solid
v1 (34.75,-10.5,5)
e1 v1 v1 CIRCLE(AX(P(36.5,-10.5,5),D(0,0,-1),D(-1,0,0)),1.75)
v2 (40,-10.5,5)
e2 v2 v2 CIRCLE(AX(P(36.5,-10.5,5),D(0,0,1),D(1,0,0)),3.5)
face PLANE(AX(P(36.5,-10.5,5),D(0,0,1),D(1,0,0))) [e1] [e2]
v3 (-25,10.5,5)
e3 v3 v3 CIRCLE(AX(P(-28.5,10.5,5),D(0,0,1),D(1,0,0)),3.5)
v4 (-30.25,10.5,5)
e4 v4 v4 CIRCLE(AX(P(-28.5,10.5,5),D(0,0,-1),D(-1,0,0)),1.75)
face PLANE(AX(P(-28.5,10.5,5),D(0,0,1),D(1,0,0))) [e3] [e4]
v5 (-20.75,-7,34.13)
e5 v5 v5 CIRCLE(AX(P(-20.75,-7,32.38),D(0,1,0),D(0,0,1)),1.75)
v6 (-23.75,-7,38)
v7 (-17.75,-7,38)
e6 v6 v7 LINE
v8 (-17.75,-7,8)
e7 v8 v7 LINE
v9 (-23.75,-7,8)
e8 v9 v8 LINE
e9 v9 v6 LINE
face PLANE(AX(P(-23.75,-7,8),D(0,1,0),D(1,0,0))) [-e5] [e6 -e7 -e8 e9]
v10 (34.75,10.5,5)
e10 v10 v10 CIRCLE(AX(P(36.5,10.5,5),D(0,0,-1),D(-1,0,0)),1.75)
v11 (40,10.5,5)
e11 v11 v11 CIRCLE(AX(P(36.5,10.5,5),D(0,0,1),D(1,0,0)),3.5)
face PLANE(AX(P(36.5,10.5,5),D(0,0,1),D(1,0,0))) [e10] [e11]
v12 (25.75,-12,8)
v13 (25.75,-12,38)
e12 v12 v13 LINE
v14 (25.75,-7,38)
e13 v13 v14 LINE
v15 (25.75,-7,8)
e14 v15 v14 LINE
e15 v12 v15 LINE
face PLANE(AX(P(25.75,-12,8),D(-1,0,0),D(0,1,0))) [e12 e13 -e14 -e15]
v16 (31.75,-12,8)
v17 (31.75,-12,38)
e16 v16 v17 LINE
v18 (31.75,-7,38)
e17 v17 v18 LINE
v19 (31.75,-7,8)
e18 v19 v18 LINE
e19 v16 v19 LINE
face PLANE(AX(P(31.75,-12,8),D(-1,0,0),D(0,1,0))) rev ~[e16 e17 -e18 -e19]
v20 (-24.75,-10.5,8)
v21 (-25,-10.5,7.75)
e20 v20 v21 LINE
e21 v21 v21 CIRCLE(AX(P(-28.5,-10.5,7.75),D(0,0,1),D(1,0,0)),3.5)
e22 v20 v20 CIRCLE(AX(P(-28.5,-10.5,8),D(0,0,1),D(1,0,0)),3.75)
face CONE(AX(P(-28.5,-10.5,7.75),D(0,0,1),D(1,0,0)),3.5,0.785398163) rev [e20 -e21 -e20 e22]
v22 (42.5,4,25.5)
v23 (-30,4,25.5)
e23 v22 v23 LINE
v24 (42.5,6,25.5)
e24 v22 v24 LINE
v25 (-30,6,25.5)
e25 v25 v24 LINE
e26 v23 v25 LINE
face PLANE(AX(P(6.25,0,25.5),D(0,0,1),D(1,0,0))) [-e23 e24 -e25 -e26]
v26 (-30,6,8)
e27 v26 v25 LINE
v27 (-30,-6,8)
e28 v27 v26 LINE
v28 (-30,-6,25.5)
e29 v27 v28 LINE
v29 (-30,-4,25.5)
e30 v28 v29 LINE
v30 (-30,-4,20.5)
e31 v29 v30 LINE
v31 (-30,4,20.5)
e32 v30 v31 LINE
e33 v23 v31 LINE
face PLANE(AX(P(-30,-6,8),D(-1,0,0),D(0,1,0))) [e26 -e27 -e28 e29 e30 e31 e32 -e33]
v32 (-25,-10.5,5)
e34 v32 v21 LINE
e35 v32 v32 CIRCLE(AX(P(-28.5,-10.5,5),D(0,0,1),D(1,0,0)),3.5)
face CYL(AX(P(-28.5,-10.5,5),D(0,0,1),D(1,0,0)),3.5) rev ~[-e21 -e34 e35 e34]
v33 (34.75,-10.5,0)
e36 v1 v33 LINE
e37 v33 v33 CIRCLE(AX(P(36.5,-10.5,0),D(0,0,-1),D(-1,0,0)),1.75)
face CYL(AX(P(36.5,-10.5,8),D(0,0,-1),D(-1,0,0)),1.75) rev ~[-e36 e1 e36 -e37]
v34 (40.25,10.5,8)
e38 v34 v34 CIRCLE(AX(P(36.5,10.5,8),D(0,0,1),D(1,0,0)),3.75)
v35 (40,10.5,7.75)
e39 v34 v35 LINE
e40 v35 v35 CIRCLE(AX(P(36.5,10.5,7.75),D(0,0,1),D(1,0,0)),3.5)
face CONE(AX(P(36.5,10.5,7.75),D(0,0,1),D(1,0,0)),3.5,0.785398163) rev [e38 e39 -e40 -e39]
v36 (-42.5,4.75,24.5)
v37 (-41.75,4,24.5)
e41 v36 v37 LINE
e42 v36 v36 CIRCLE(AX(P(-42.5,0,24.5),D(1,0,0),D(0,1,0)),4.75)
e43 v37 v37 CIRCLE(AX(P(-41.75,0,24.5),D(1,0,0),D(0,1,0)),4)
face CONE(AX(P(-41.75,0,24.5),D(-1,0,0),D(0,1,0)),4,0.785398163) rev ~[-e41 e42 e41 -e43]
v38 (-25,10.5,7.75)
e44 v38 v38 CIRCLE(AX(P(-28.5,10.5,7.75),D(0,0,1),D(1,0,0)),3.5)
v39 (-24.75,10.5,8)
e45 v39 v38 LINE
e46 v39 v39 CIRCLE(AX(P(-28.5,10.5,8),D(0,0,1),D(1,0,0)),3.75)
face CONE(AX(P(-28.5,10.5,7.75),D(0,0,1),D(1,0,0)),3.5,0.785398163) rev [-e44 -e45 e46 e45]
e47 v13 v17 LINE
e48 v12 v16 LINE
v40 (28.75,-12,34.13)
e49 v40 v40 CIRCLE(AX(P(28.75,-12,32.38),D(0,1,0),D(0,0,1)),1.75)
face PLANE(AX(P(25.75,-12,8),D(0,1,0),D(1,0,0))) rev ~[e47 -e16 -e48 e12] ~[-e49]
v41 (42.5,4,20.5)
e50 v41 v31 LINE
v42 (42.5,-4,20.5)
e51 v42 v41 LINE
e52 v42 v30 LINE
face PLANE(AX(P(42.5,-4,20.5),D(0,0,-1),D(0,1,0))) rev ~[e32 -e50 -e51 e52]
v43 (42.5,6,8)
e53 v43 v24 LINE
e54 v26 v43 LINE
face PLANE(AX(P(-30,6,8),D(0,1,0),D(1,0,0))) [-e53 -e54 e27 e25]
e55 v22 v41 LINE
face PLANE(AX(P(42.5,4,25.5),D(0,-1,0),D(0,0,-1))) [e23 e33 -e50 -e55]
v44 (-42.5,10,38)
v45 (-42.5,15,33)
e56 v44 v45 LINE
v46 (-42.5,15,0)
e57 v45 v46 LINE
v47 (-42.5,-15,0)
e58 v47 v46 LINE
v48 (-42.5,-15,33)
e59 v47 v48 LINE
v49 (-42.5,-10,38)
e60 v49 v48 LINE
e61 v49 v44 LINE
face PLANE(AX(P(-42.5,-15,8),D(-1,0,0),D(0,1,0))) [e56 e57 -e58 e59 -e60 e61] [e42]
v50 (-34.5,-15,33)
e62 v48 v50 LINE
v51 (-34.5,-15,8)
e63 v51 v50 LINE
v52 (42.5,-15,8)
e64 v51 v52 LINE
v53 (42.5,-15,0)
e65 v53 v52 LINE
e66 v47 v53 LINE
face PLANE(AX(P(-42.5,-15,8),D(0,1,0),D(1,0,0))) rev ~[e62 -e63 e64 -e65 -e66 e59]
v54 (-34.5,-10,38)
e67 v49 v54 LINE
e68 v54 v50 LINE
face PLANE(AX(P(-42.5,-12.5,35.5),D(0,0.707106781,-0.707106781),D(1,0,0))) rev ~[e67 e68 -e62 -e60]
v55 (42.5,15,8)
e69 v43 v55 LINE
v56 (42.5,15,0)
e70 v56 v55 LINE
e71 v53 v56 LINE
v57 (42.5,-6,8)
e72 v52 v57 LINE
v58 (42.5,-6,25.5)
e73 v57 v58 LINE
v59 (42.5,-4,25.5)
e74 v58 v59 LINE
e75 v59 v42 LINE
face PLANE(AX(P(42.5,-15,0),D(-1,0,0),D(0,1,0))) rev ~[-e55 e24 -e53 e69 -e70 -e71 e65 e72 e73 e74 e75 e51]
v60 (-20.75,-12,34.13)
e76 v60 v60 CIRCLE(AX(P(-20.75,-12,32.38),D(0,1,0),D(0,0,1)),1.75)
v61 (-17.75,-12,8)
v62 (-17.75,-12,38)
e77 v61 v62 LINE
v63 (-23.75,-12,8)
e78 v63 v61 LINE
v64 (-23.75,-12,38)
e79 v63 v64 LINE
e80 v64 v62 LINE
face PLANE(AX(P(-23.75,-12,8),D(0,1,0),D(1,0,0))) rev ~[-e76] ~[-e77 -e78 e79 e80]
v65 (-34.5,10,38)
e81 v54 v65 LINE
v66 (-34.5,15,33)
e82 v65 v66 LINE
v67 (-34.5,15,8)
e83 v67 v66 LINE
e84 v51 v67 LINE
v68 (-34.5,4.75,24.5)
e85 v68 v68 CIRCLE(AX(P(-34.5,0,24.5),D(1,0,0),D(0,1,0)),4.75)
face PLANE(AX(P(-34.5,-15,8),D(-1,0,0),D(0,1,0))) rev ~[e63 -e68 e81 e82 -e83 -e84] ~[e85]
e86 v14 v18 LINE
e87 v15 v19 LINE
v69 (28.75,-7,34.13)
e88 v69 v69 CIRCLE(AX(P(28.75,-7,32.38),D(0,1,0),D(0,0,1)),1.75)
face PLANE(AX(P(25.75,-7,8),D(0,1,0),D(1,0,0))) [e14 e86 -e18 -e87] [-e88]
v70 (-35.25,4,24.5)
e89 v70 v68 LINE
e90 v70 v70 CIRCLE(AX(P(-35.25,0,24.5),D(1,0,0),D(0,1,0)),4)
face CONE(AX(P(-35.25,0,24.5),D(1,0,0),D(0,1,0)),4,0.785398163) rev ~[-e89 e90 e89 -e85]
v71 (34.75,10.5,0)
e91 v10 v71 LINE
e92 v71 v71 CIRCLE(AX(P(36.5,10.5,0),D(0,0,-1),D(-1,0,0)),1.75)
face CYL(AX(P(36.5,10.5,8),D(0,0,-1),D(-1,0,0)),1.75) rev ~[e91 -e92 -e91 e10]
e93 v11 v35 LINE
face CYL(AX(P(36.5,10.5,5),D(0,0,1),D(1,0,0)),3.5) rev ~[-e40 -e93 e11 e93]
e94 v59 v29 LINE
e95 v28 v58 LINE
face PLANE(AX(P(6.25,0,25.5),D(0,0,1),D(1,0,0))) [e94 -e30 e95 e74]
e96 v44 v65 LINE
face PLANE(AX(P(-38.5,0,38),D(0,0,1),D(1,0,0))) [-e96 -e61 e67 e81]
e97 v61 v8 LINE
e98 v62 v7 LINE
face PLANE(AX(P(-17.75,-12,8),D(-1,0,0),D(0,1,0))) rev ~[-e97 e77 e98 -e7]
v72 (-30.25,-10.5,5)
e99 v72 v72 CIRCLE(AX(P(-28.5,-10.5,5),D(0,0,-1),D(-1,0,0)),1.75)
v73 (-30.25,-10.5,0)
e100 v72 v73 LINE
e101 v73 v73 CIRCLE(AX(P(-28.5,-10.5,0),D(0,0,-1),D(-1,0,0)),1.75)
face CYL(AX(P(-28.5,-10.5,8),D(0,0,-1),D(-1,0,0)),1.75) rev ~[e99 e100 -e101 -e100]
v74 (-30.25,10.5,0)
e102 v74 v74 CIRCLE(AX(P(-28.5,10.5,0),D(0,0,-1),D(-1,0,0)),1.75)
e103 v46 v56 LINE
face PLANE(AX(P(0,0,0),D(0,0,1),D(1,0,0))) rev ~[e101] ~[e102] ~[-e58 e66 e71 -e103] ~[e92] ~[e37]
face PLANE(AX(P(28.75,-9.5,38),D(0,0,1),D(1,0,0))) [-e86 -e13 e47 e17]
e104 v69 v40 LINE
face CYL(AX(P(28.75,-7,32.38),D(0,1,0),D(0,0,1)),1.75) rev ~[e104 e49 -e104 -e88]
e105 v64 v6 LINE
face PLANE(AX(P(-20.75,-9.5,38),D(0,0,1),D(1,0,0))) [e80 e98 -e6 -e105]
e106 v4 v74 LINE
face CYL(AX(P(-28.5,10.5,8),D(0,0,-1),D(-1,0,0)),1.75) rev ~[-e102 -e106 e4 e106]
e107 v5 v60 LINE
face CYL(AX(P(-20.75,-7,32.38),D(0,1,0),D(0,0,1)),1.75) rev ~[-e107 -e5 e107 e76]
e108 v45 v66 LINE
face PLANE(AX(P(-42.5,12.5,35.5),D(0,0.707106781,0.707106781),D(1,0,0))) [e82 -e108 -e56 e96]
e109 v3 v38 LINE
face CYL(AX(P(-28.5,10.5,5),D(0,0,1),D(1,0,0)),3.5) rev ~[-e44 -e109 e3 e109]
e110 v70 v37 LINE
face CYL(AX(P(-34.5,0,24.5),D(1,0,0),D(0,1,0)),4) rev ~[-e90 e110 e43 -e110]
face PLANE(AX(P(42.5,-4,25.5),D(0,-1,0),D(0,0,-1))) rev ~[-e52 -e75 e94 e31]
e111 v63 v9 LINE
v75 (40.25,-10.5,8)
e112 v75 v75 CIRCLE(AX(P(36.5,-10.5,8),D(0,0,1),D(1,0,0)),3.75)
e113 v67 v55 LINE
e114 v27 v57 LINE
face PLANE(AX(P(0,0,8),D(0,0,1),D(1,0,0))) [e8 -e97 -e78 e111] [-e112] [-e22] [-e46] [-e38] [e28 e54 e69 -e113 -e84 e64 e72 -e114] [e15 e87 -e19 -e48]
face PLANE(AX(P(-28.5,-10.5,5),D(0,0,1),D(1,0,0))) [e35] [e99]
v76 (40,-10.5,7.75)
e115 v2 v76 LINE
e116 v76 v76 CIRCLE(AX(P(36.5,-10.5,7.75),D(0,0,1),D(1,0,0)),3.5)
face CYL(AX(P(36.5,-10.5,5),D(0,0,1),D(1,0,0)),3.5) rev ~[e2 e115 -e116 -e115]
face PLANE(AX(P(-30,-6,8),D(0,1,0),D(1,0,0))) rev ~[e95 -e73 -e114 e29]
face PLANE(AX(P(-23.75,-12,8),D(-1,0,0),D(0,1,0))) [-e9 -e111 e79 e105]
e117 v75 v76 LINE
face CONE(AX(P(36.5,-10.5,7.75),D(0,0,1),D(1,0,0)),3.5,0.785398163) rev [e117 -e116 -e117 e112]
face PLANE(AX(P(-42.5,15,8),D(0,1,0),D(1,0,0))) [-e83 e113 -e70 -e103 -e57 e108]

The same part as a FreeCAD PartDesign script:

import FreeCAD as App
import Part
import Sketcher


def edges_at(feature, points):
    """Names of the edges that pass closest to the given points."""
    edges = feature.Shape.Edges
    near = lambda p: min(range(len(edges)), key=lambda i: edges[i].distToShape(Part.Vertex(*p))[0])
    return sorted({f"Edge{near(p) + 1}" for p in points})

doc = App.newDocument("Part")
body = doc.addObject("PartDesign::Body", "Body")

# Sketch on XY plane
sketch1 = doc.addObject("Sketcher::SketchObject", "Sketch")
body.addObject(sketch1)
sketch1.AttachmentSupport = (doc.XY_Plane, [""])
sketch1.MapMode = "FlatFace"
sketch1.addGeometry([
    Part.LineSegment(App.Vector(-42, 15, 0), App.Vector(-42, -15, 0)),
    Part.LineSegment(App.Vector(-42, -15, 0), App.Vector(42, -15, 0)),
    Part.LineSegment(App.Vector(42, -15, 0), App.Vector(42, 15, 0)),
    Part.LineSegment(App.Vector(42, 15, 0), App.Vector(-42, 15, 0)),
], False)
sketch1.addConstraint([
    Sketcher.Constraint("Coincident", 0, 2, 1, 1),
    Sketcher.Constraint("Coincident", 1, 2, 2, 1),
    Sketcher.Constraint("Coincident", 2, 2, 3, 1),
    Sketcher.Constraint("Coincident", 3, 2, 0, 1),
    Sketcher.Constraint("Vertical", 0),
    Sketcher.Constraint("Horizontal", 1),
    Sketcher.Constraint("Vertical", 2),
    Sketcher.Constraint("Horizontal", 3),
    Sketcher.Constraint("Symmetric", 0, 2, 2, 2, -1, 1),
    Sketcher.Constraint("DistanceX", 1, 1, 1, 2, 85.0),
    Sketcher.Constraint("DistanceY", 0, 2, 0, 1, 30.0),
])
pad1 = doc.addObject("PartDesign::Pad", "Pad")
body.addObject(pad1)
pad1.Profile = sketch1
pad1.Length = 8

# Sketch on XY plane
sketch2 = doc.addObject("Sketcher::SketchObject", "Sketch001")
body.addObject(sketch2)
sketch2.AttachmentSupport = (doc.XY_Plane, [""])
sketch2.MapMode = "FlatFace"
sketch2.AttachmentOffset = App.Placement(App.Vector(0, 0, 8), App.Rotation())
sketch2.addGeometry([
    Part.LineSegment(App.Vector(-42, 15, 0), App.Vector(-42, -15, 0)),
    Part.LineSegment(App.Vector(-42, -15, 0), App.Vector(-34, -15, 0)),
    Part.LineSegment(App.Vector(-34, -15, 0), App.Vector(-34, 15, 0)),
    Part.LineSegment(App.Vector(-34, 15, 0), App.Vector(-42, 15, 0)),
], False)
sketch2.addConstraint([
    Sketcher.Constraint("Coincident", 0, 2, 1, 1),
    Sketcher.Constraint("Coincident", 1, 2, 2, 1),
    Sketcher.Constraint("Coincident", 2, 2, 3, 1),
    Sketcher.Constraint("Coincident", 3, 2, 0, 1),
    Sketcher.Constraint("Vertical", 0),
    Sketcher.Constraint("Horizontal", 1),
    Sketcher.Constraint("Vertical", 2),
    Sketcher.Constraint("Horizontal", 3),
    Sketcher.Constraint("DistanceX", 1, 1, 1, 2, 8.0),
    Sketcher.Constraint("DistanceY", 0, 2, 0, 1, 30.0),
    Sketcher.Constraint("DistanceY", 0, 2, -1, 1, 15.0),
    Sketcher.Constraint("DistanceX", 0, 2, -1, 1, 42.5),
])
pad2 = doc.addObject("PartDesign::Pad", "Pad001")
body.addObject(pad2)
pad2.Profile = sketch2
pad2.Length = 30

# Sketch on XY plane
sketch3 = doc.addObject("Sketcher::SketchObject", "Sketch002")
body.addObject(sketch3)
sketch3.AttachmentSupport = (doc.XY_Plane, [""])
sketch3.MapMode = "FlatFace"
sketch3.AttachmentOffset = App.Placement(App.Vector(0, 0, 8), App.Rotation())
sketch3.addGeometry([
    Part.LineSegment(App.Vector(-30, 6, 0), App.Vector(-30, -6, 0)),
    Part.LineSegment(App.Vector(-30, -6, 0), App.Vector(42, -6, 0)),
    Part.LineSegment(App.Vector(42, -6, 0), App.Vector(42, 6, 0)),
    Part.LineSegment(App.Vector(42, 6, 0), App.Vector(-30, 6, 0)),
], False)
sketch3.addConstraint([
    Sketcher.Constraint("Coincident", 0, 2, 1, 1),
    Sketcher.Constraint("Coincident", 1, 2, 2, 1),
    Sketcher.Constraint("Coincident", 2, 2, 3, 1),
    Sketcher.Constraint("Coincident", 3, 2, 0, 1),
    Sketcher.Constraint("Vertical", 0),
    Sketcher.Constraint("Horizontal", 1),
    Sketcher.Constraint("Vertical", 2),
    Sketcher.Constraint("Horizontal", 3),
    Sketcher.Constraint("DistanceY", 0, 2, 0, 1, 12.0),
    Sketcher.Constraint("DistanceX", 1, 1, 1, 2, 72.5),
    Sketcher.Constraint("DistanceX", 0, 2, -1, 1, 30.0),
    Sketcher.Constraint("DistanceY", 0, 2, -1, 1, 6.0),
])
pad3 = doc.addObject("PartDesign::Pad", "Pad002")
body.addObject(pad3)
pad3.Profile = sketch3
pad3.Length = 17.5

# Sketch on YZ plane
sketch4 = doc.addObject("Sketcher::SketchObject", "Sketch003")
body.addObject(sketch4)
sketch4.AttachmentSupport = (doc.YZ_Plane, [""])
sketch4.MapMode = "FlatFace"
sketch4.AttachmentOffset = App.Placement(App.Vector(0, 0, 42.5), App.Rotation())
sketch4.addGeometry([
    Part.LineSegment(App.Vector(4, 26, 0), App.Vector(-4, 26, 0)),
    Part.LineSegment(App.Vector(-4, 26, 0), App.Vector(-4, 20, 0)),
    Part.LineSegment(App.Vector(-4, 20, 0), App.Vector(4, 20, 0)),
    Part.LineSegment(App.Vector(4, 20, 0), App.Vector(4, 26, 0)),
], False)
sketch4.addConstraint([
    Sketcher.Constraint("Coincident", 0, 2, 1, 1),
    Sketcher.Constraint("Coincident", 1, 2, 2, 1),
    Sketcher.Constraint("Coincident", 2, 2, 3, 1),
    Sketcher.Constraint("Coincident", 3, 2, 0, 1),
    Sketcher.Constraint("Horizontal", 0),
    Sketcher.Constraint("Vertical", 1),
    Sketcher.Constraint("Horizontal", 2),
    Sketcher.Constraint("Vertical", 3),
    Sketcher.Constraint("DistanceX", 0, 2, 0, 1, 8.0),
    Sketcher.Constraint("DistanceY", 1, 2, 1, 1, 5.0),
    Sketcher.Constraint("DistanceX", 0, 2, -1, 1, 4.0),
    Sketcher.Constraint("DistanceY", -1, 1, 0, 2, 25.5),
])
pocket1 = doc.addObject("PartDesign::Pocket", "Pocket")
body.addObject(pocket1)
pocket1.Profile = sketch4
pocket1.Length = 72.5
doc.recompute()

chamfer = doc.addObject("PartDesign::Chamfer", "Chamfer")
body.addObject(chamfer)
chamfer.Base = (pocket1, edges_at(pocket1, [(-38.5, -15, 38), (-38.5, 15, 38)]))
chamfer.Size = 5

# Sketch on YZ plane
sketch5 = doc.addObject("Sketcher::SketchObject", "Sketch004")
body.addObject(sketch5)
sketch5.AttachmentSupport = (doc.YZ_Plane, [""])
sketch5.MapMode = "FlatFace"
sketch5.AttachmentOffset = App.Placement(App.Vector(0, 0, -34.5), App.Rotation())
sketch5.addGeometry(Part.Circle(App.Vector(0, 24.5, 0), App.Vector(0, 0, 1), 4), False)
sketch5.addConstraint([
    Sketcher.Constraint("PointOnObject", 0, 3, -2),
    Sketcher.Constraint("Diameter", 0, 8.0),
    Sketcher.Constraint("DistanceY", -1, 1, 0, 3, 24.5),
])
pocket2 = doc.addObject("PartDesign::Pocket", "Pocket001")
body.addObject(pocket2)
pocket2.Profile = sketch5
pocket2.Length = 20
doc.recompute()

chamfer2 = doc.addObject("PartDesign::Chamfer", "Chamfer001")
body.addObject(chamfer2)
chamfer2.Base = (pocket2, edges_at(pocket2, [(-42.5, -4, 24.5), (-34.5, -4, 24.5)]))
chamfer2.Size = 0.75

# Sketch on XY plane
sketch6 = doc.addObject("Sketcher::SketchObject", "Sketch005")
body.addObject(sketch6)
sketch6.AttachmentSupport = (doc.XY_Plane, [""])
sketch6.MapMode = "FlatFace"
sketch6.AttachmentOffset = App.Placement(App.Vector(0, 0, 8), App.Rotation())
sketch6.addGeometry([
    Part.Circle(App.Vector(-28.5, 10.5, 0), App.Vector(0, 0, 1), 1.8),
    Part.Circle(App.Vector(-28.5, -10.5, 0), App.Vector(0, 0, 1), 1.8),
    Part.Circle(App.Vector(36.5, -10.5, 0), App.Vector(0, 0, 1), 1.8),
    Part.Circle(App.Vector(36.5, 10.5, 0), App.Vector(0, 0, 1), 1.8),
], False)
sketch6.addConstraint([
    Sketcher.Constraint("Equal", 0, 1),
    Sketcher.Constraint("Equal", 1, 2),
    Sketcher.Constraint("Equal", 2, 3),
    Sketcher.Constraint("Symmetric", 0, 3, 1, 3, -1),
    Sketcher.Constraint("Symmetric", 2, 3, 3, 3, -1),
    Sketcher.Constraint("Horizontal", 1, 3, 2, 3),
    Sketcher.Constraint("Diameter", 0, 3.5),
    Sketcher.Constraint("DistanceY", 1, 3, 0, 3, 21.0),
    Sketcher.Constraint("DistanceX", 1, 3, 2, 3, 65.0),
    Sketcher.Constraint("DistanceX", 0, 3, -1, 1, 28.5),
])
doc.recompute()
hole = doc.addObject("PartDesign::Hole", "Hole")
body.addObject(hole)
hole.Profile = sketch6
hole.ThreadType = "None"
hole.Diameter = 3.5
hole.DepthType = "ThroughAll"
hole.HoleCutType = "Counterbore"
hole.HoleCutDiameter = 7
hole.HoleCutDepth = 3
doc.recompute()

chamfer3 = doc.addObject("PartDesign::Chamfer", "Chamfer002")
body.addObject(chamfer3)
chamfer3.Base = (hole, edges_at(hole, [
    (-32, 10.5, 8),
    (33, 10.5, 8),
    (33, -10.5, 8),
    (-32, -10.5, 8),
]))
chamfer3.Size = 0.25

# Sketch on XY plane
sketch7 = doc.addObject("Sketcher::SketchObject", "Sketch006")
body.addObject(sketch7)
sketch7.AttachmentSupport = (doc.XY_Plane, [""])
sketch7.MapMode = "FlatFace"
sketch7.AttachmentOffset = App.Placement(App.Vector(0, 0, 8), App.Rotation())
sketch7.addGeometry([
    Part.LineSegment(App.Vector(-24, -7, 0), App.Vector(-24, -12, 0)),  # 0
    Part.LineSegment(App.Vector(-24, -12, 0), App.Vector(-18, -12, 0)),  # 1
    Part.LineSegment(App.Vector(-18, -12, 0), App.Vector(-18, -7, 0)),  # 2
    Part.LineSegment(App.Vector(-18, -7, 0), App.Vector(-24, -7, 0)),  # 3
    Part.LineSegment(App.Vector(26, -7, 0), App.Vector(26, -12, 0)),  # 4
    Part.LineSegment(App.Vector(26, -12, 0), App.Vector(32, -12, 0)),  # 5
    Part.LineSegment(App.Vector(32, -12, 0), App.Vector(32, -7, 0)),  # 6
    Part.LineSegment(App.Vector(32, -7, 0), App.Vector(26, -7, 0)),  # 7
], False)
sketch7.addConstraint([
    Sketcher.Constraint("Coincident", 0, 2, 1, 1),
    Sketcher.Constraint("Coincident", 1, 2, 2, 1),
    Sketcher.Constraint("Coincident", 2, 2, 3, 1),
    Sketcher.Constraint("Coincident", 3, 2, 0, 1),
    Sketcher.Constraint("Coincident", 4, 2, 5, 1),
    Sketcher.Constraint("Coincident", 5, 2, 6, 1),
    Sketcher.Constraint("Coincident", 6, 2, 7, 1),
    Sketcher.Constraint("Coincident", 7, 2, 4, 1),
    Sketcher.Constraint("Vertical", 0),
    Sketcher.Constraint("Horizontal", 1),
    Sketcher.Constraint("Vertical", 2),
    Sketcher.Constraint("Horizontal", 3),
    Sketcher.Constraint("Vertical", 4),
    Sketcher.Constraint("Horizontal", 5),
    Sketcher.Constraint("Vertical", 6),
    Sketcher.Constraint("Horizontal", 7),
    Sketcher.Constraint("Horizontal", 1, 2, 4, 2),
    Sketcher.Constraint("Horizontal", 3, 2, 6, 2),
    Sketcher.Constraint("Equal", 3, 5),
    Sketcher.Constraint("DistanceX", 1, 1, 1, 2, 6.0),
    Sketcher.Constraint("DistanceY", 0, 2, 0, 1, 5.0),
    Sketcher.Constraint("DistanceY", 0, 2, -1, 1, 12.0),
    Sketcher.Constraint("DistanceX", 1, 2, 4, 2, 43.5),
    Sketcher.Constraint("DistanceX", 0, 2, -1, 1, 23.75),
])
pad4 = doc.addObject("PartDesign::Pad", "Pad003")
body.addObject(pad4)
pad4.Profile = sketch7
pad4.Length = 30

# Sketch on XZ plane
sketch8 = doc.addObject("Sketcher::SketchObject", "Sketch007")
body.addObject(sketch8)
sketch8.AttachmentSupport = (doc.XZ_Plane, [""])
sketch8.MapMode = "FlatFace"
sketch8.AttachmentOffset = App.Placement(App.Vector(0, 0, 7), App.Rotation())
sketch8.addGeometry(Part.Circle(App.Vector(-20.8, 32.4, 0), App.Vector(0, 0, 1), 1.8), False)
sketch8.addConstraint([
    Sketcher.Constraint("Diameter", 0, 3.5),
    Sketcher.Constraint("DistanceX", 0, 3, -1, 1, 20.75),
    Sketcher.Constraint("DistanceY", -1, 1, 0, 3, 32.38),
])
pocket3 = doc.addObject("PartDesign::Pocket", "Pocket002")
body.addObject(pocket3)
pocket3.Profile = sketch8
pocket3.Length = 5
pocket3.Reversed = True

# Sketch on XZ plane
sketch9 = doc.addObject("Sketcher::SketchObject", "Sketch008")
body.addObject(sketch9)
sketch9.AttachmentSupport = (doc.XZ_Plane, [""])
sketch9.MapMode = "FlatFace"
sketch9.AttachmentOffset = App.Placement(App.Vector(0, 0, 7), App.Rotation())
sketch9.addGeometry(Part.Circle(App.Vector(28.8, 32.4, 0), App.Vector(0, 0, 1), 1.8), False)
sketch9.addConstraint([
    Sketcher.Constraint("Diameter", 0, 3.5),
    Sketcher.Constraint("DistanceX", -1, 1, 0, 3, 28.75),
    Sketcher.Constraint("DistanceY", -1, 1, 0, 3, 32.38),
])
pocket4 = doc.addObject("PartDesign::Pocket", "Pocket003")
body.addObject(pocket4)
pocket4.Profile = sketch9
pocket4.Length = 5
pocket4.Reversed = True

doc.recompute()
